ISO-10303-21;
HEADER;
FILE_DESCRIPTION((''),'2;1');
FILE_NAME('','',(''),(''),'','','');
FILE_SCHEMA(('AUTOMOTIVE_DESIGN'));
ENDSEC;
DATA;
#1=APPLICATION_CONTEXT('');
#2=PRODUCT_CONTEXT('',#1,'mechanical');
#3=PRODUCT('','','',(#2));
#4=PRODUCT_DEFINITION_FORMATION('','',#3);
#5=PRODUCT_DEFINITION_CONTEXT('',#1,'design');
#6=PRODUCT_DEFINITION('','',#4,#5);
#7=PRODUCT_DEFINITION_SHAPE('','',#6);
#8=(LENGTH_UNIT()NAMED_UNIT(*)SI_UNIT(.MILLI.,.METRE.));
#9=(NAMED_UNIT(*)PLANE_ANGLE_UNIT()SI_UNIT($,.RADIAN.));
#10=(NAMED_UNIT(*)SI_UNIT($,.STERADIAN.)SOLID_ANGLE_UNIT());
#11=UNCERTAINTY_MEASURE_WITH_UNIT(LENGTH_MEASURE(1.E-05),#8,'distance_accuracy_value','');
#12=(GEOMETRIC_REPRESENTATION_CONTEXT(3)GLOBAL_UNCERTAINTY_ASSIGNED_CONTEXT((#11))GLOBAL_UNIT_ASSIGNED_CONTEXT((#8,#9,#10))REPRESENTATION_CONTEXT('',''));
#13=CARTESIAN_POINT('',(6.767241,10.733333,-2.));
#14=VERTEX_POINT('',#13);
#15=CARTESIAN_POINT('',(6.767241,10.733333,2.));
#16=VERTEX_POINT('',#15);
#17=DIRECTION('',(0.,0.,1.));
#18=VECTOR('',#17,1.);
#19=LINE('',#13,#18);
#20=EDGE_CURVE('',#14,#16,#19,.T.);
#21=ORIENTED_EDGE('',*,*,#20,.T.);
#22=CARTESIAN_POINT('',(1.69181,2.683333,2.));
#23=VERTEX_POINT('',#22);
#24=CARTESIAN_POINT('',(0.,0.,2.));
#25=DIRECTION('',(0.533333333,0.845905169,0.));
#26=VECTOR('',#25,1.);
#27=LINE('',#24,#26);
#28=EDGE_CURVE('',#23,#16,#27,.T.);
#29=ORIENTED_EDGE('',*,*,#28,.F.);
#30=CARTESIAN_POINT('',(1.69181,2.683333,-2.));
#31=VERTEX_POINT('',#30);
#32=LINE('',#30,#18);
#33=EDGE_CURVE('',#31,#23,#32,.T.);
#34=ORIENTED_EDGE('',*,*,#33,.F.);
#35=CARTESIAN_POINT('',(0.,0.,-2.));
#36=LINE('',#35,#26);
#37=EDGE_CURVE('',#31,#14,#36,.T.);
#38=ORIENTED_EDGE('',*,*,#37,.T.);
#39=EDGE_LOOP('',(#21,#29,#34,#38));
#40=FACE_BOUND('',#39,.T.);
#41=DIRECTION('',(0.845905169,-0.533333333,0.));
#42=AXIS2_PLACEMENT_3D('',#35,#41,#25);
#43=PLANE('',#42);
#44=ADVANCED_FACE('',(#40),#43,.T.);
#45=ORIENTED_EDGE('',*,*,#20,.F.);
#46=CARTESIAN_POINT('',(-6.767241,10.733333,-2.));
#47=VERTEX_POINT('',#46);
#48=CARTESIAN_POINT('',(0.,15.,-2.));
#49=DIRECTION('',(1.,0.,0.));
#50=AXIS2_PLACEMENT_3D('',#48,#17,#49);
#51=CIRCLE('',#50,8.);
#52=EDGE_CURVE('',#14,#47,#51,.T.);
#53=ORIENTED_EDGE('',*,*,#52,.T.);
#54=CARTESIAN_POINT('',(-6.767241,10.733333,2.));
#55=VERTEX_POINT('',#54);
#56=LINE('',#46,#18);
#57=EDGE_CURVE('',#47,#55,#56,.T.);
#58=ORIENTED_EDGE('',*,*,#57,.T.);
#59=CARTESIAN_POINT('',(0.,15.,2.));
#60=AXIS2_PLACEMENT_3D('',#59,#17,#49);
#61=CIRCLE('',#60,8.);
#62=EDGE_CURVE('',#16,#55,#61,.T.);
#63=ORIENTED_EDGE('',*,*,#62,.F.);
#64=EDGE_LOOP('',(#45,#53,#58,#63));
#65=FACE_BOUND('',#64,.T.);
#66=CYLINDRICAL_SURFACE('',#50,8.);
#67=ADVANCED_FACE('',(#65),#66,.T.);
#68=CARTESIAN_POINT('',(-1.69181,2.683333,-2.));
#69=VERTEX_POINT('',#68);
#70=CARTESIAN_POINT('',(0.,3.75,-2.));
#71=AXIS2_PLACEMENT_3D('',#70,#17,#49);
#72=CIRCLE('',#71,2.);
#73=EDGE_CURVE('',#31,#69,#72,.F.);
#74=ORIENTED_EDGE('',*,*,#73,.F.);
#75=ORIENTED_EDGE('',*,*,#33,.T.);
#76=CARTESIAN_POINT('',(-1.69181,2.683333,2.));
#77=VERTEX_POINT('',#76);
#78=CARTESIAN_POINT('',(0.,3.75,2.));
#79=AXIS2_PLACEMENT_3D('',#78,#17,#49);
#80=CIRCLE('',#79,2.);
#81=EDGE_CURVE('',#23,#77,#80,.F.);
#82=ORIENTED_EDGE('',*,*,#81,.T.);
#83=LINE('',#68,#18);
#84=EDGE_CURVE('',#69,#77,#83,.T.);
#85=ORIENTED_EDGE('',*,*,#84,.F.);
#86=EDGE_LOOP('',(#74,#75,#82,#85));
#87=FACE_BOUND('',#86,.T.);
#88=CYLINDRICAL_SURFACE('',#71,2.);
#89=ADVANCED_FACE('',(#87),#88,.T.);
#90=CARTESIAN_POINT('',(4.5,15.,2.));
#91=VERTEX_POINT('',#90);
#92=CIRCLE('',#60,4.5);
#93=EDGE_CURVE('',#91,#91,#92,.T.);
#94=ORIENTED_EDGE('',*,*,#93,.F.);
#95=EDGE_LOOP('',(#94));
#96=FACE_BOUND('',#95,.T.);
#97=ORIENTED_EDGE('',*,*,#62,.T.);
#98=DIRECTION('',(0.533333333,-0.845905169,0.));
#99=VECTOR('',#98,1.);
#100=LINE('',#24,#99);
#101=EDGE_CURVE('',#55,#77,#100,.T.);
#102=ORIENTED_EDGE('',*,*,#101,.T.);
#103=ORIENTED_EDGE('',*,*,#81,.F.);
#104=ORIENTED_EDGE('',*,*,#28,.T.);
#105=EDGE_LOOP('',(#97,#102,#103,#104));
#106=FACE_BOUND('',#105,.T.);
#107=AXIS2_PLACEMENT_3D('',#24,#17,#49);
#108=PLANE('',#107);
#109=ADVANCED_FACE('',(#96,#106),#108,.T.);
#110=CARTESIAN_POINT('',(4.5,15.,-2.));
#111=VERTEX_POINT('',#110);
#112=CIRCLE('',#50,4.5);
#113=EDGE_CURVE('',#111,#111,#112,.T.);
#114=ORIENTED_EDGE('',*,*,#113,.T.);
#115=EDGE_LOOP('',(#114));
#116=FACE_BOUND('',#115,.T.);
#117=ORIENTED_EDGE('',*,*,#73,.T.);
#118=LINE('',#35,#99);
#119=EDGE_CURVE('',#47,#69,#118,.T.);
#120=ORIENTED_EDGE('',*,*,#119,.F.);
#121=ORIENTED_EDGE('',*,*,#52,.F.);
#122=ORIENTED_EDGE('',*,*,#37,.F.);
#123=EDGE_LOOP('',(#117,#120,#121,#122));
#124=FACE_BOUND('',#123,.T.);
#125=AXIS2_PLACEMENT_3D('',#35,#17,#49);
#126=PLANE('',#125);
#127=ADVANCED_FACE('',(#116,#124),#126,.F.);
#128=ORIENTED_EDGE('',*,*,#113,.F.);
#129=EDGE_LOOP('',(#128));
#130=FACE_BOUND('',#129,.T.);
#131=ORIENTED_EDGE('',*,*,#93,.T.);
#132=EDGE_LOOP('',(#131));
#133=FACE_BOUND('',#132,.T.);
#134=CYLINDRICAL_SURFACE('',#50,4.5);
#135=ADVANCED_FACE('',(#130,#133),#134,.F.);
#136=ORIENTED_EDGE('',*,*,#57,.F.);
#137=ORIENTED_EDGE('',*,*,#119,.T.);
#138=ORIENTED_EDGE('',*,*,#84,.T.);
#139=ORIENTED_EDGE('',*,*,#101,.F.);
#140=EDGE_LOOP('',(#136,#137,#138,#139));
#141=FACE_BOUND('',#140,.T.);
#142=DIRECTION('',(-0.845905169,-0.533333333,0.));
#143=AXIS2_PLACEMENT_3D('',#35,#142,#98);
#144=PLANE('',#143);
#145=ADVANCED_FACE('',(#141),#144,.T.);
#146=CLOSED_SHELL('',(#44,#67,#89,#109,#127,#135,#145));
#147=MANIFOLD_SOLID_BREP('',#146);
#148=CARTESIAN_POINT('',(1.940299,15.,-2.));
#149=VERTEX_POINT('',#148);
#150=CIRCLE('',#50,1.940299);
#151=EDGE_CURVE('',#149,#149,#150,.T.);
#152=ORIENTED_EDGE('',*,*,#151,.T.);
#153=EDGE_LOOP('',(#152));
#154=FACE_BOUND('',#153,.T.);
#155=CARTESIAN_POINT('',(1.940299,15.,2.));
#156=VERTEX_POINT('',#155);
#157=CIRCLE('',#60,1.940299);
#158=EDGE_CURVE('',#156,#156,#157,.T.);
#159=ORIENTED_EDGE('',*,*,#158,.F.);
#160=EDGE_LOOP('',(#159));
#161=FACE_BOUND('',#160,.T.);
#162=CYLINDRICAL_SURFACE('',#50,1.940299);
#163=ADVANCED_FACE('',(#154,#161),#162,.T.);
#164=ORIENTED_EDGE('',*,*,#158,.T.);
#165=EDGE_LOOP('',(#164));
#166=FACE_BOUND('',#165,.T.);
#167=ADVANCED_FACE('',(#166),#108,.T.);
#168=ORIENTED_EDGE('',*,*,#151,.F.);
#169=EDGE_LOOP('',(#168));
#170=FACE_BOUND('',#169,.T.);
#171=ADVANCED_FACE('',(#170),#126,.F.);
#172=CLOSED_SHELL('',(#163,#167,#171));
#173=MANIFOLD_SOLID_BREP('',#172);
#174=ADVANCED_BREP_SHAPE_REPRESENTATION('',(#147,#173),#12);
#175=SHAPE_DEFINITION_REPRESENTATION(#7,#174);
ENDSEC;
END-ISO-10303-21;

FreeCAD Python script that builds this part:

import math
import FreeCAD as App
import Part
import Sketcher
Q = App.Units.Quantity

doc = App.newDocument("Part")
body = doc.addObject("PartDesign::Body", "Body")

sketch1 = doc.addObject("Sketcher::SketchObject", "Sketch")
body.addObject(sketch1)
sketch1.AttachmentSupport = (doc.XY_Plane, [""])
sketch1.MapMode = "FlatFace"
sketch1.addGeometry(Part.Circle(App.Vector(0, 15, 0), App.Vector(0, 0, 1), 1.9), False)
sketch1.addConstraint([
    Sketcher.Constraint("PointOnObject", 0, 3, -2),
    Sketcher.Constraint("DistanceY", -1, 1, 0, 3, Q("15 mm")),
    Sketcher.Constraint("Diameter", 0, Q("3.880598 mm")),
])
pad1 = doc.addObject("PartDesign::Pad", "Pad")
body.addObject(pad1)
pad1.Profile = sketch1
pad1.Type = "TwoLengths"
pad1.Length = 2
pad1.Length2 = 2
body2 = doc.addObject("PartDesign::Body", "Body001")

sketch2 = doc.addObject("Sketcher::SketchObject", "Sketch001")
body2.addObject(sketch2)
sketch2.AttachmentSupport = (doc.getObject("XY_Plane001"), [""])
sketch2.MapMode = "FlatFace"
sketch2.addGeometry([
    Part.LineSegment(App.Vector(-6.8, 10.7, 0), App.Vector(-1.7, 2.7, 0)),
    Part.ArcOfCircle(Part.Circle(App.Vector(0, 3.8, 0), App.Vector(0, 0, 1), 2), math.radians(-148), math.radians(-32)),
    Part.LineSegment(App.Vector(1.7, 2.7, 0), App.Vector(6.8, 10.7, 0)),
    Part.ArcOfCircle(Part.Circle(App.Vector(0, 15, 0), App.Vector(0, 0, 1), 8), math.radians(-32), math.radians(212)),
    Part.Circle(App.Vector(0, 15, 0), App.Vector(0, 0, 1), 4.5),
], False)
sketch2.addConstraint([
    Sketcher.Constraint("Tangent", 0, 2, 1, 1),
    Sketcher.Constraint("Tangent", 1, 2, 2, 1),
    Sketcher.Constraint("Tangent", 2, 2, 3, 1),
    Sketcher.Constraint("Tangent", 3, 2, 0, 1),
    Sketcher.Constraint("Coincident", 4, 3, 3, 3),
    Sketcher.Constraint("Symmetric", 0, 2, 1, 2, -2),
    Sketcher.Constraint("Diameter", 4, Q("9 mm")),
    Sketcher.Constraint("Radius", 1, Q("2 mm")),
    Sketcher.Constraint("Radius", 3, Q("8 mm")),
    Sketcher.Constraint("DistanceY", -1, 1, 3, 3, Q("15 mm")),
    Sketcher.Constraint("DistanceY", -1, 1, 1, 3, Q("3.75 mm")),
])
pad2 = doc.addObject("PartDesign::Pad", "Pad001")
body2.addObject(pad2)
pad2.Profile = sketch2
pad2.Type = "TwoLengths"
pad2.Length = 2
pad2.Length2 = 2

doc.recompute()
